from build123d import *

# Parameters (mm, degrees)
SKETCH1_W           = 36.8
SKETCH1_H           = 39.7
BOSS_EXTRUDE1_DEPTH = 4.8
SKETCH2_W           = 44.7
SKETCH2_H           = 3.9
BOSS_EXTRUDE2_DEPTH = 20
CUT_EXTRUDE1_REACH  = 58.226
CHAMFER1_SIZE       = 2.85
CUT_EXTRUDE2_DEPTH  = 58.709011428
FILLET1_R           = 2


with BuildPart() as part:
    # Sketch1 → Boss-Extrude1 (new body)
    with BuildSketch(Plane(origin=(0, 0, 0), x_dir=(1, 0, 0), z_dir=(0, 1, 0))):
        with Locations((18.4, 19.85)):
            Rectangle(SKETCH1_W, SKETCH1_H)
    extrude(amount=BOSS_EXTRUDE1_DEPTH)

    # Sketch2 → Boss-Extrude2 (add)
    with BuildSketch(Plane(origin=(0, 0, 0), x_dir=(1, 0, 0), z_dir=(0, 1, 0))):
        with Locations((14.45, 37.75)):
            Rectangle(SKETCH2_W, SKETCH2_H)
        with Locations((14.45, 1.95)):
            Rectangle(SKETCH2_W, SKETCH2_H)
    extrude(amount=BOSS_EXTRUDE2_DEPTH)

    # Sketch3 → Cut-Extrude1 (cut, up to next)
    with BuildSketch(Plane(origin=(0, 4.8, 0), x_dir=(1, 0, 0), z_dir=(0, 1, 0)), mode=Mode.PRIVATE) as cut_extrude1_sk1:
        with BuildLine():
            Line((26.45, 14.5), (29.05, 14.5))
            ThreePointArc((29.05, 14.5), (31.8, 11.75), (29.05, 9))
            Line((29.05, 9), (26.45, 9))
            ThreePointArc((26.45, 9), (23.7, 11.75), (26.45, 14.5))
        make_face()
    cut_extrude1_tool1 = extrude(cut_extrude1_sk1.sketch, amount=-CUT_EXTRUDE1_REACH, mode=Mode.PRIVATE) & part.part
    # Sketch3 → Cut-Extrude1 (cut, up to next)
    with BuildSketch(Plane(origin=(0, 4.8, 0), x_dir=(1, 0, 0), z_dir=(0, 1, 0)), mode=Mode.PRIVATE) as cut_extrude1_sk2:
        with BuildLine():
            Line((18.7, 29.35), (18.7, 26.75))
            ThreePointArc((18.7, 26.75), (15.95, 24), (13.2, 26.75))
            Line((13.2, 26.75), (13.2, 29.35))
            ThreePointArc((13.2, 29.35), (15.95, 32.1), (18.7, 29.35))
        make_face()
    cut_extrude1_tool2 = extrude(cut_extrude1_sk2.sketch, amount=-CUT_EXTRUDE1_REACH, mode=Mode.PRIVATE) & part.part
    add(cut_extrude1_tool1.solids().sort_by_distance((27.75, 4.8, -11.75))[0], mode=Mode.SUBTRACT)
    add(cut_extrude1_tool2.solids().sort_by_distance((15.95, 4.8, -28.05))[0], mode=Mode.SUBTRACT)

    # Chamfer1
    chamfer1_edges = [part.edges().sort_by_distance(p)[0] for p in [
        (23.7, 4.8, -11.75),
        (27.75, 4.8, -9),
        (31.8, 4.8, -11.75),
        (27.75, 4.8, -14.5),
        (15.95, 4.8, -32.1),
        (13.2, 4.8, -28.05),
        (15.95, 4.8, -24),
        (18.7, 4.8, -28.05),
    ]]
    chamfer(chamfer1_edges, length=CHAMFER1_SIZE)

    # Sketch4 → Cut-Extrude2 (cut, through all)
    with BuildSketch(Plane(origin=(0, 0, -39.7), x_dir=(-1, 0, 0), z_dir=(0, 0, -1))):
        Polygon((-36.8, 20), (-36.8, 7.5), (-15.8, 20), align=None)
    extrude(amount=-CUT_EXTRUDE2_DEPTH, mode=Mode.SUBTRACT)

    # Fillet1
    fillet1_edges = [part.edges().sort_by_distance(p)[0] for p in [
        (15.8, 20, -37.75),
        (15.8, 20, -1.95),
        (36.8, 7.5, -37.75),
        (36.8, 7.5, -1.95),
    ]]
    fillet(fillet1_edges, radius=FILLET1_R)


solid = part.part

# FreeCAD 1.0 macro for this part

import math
import FreeCAD as App
import Part
import Sketcher

V = App.Vector
Q = App.Units.Quantity


def edges_at(feature, points):
    """Names of the edges that pass closest to the given points."""
    edges = feature.Shape.Edges
    near = lambda p: min(range(len(edges)), key=lambda i: edges[i].distToShape(Part.Vertex(*p))[0])
    return sorted({f"Edge{near(p) + 1}" for p in points})


def add_polygon(sketch, points):
    """Adds a closed chain of lines whose ends are joined by coincident constraints."""
    first, n = sketch.GeometryCount, len(points)
    for a, b in zip(points, points[1:] + points[:1]):
        sketch.addGeometry(Part.LineSegment(App.Vector(*a, 0), App.Vector(*b, 0)), False)
    for i in range(n):
        sketch.addConstraint(Sketcher.Constraint("Coincident", first + i, 2, first + (i + 1) % n, 1))

doc = App.newDocument("Part")
body = doc.addObject("PartDesign::Body", "Body")

sketch1 = body.newObject("Sketcher::SketchObject", "Sketch")
sketch1.AttachmentSupport = (doc.getObject("XZ_Plane"), [""])
sketch1.MapMode = "FlatFace"
add_polygon(sketch1, [(0, -40), (0, 0), (37, 0), (37, -40)])
sketch1.addConstraint([
    Sketcher.Constraint("Vertical", 0),
    Sketcher.Constraint("Horizontal", 1),
    Sketcher.Constraint("Vertical", 2),
    Sketcher.Constraint("Horizontal", 3),
    Sketcher.Constraint("Coincident", 0, 2, -1, 1),
    Sketcher.Constraint("DistanceX", 1, 1, 1, 2, Q("36.8 mm")),
    Sketcher.Constraint("DistanceY", 0, 1, 0, 2, Q("39.7 mm")),
])
pad1 = body.newObject("PartDesign::Pad", "Pad")
pad1.Profile = sketch1
pad1.Length = 4.8
pad1.Reversed = True

sketch2 = body.newObject("Sketcher::SketchObject", "Sketch001")
sketch2.AttachmentSupport = (doc.getObject("XZ_Plane"), [""])
sketch2.MapMode = "FlatFace"
add_polygon(sketch2, [(-7.9, -39.7), (-7.9, -35.8), (36.8, -35.8), (36.8, -39.7)])
add_polygon(sketch2, [(-7.9, -3.9), (-7.9, 0), (36.8, 0), (36.8, -3.9)])
sketch2.addConstraint([
    Sketcher.Constraint("Vertical", 0),
    Sketcher.Constraint("Horizontal", 1),
    Sketcher.Constraint("Vertical", 2),
    Sketcher.Constraint("Horizontal", 3),
    Sketcher.Constraint("Vertical", 4),
    Sketcher.Constraint("Horizontal", 5),
    Sketcher.Constraint("Vertical", 6),
    Sketcher.Constraint("Horizontal", 7),
    Sketcher.Constraint("PointOnObject", 4, 2, -1),
    Sketcher.Constraint("Vertical", 3, 2, 4, 2),
    Sketcher.Constraint("Vertical", 2, 2, 5, 2),
    Sketcher.Constraint("Equal", 2, 4),
    Sketcher.Constraint("DistanceX", 1, 1, 1, 2, Q("44.7 mm")),
    Sketcher.Constraint("DistanceY", 0, 1, 0, 2, Q("3.9 mm")),
    Sketcher.Constraint("DistanceX", 0, 2, -1, 1, Q("7.9 mm")),
    Sketcher.Constraint("DistanceY", 0, 2, -1, 1, Q("35.8 mm")),
])
pad2 = body.newObject("PartDesign::Pad", "Pad001")
pad2.Profile = sketch2
pad2.Length = 20
pad2.Reversed = True

sketch3 = body.newObject("Sketcher::SketchObject", "Sketch002")
sketch3.AttachmentSupport = (doc.getObject("XZ_Plane"), [""])
sketch3.MapMode = "FlatFace"
sketch3.AttachmentOffset = App.Placement(V(0, 0, -4.8), App.Rotation())
sketch3.addGeometry([
    Part.LineSegment(V(29.1, -14.5, 0), V(26.4, -14.5, 0)),
    Part.ArcOfCircle(Part.Circle(V(26.4, -11.8, 0), V(0, 0, 1), 2.8), math.radians(90), math.radians(270)),
    Part.LineSegment(V(26.4, -9, 0), V(29.1, -9, 0)),
    Part.ArcOfCircle(Part.Circle(V(29.1, -11.8, 0), V(0, 0, 1), 2.8), math.radians(-90), math.radians(90)),
], False)
sketch3.addConstraint([
    Sketcher.Constraint("Tangent", 0, 2, 1, 2),
    Sketcher.Constraint("Tangent", 1, 1, 2, 1),
    Sketcher.Constraint("Tangent", 2, 2, 3, 2),
    Sketcher.Constraint("Tangent", 3, 1, 0, 1),
    Sketcher.Constraint("Horizontal", 0),
    Sketcher.Constraint("Horizontal", 2),
    Sketcher.Constraint("Radius", 1, Q("2.75 mm")),
    Sketcher.Constraint("DistanceX", 0, 2, 0, 1, Q("2.6 mm")),
    Sketcher.Constraint("DistanceY", 1, 1, -1, 1, Q("9 mm")),
    Sketcher.Constraint("DistanceX", -1, 1, 1, 3, Q("26.45 mm")),
])
pocket1 = body.newObject("PartDesign::Pocket", "Pocket")
pocket1.Profile = sketch3
pocket1.Type = "UpToFirst"
pocket1.Reversed = True

sketch4 = body.newObject("Sketcher::SketchObject", "Sketch003")
sketch4.AttachmentSupport = (doc.getObject("XZ_Plane"), [""])
sketch4.MapMode = "FlatFace"
sketch4.AttachmentOffset = App.Placement(V(0, 0, -4.8), App.Rotation())
sketch4.addGeometry([
    Part.LineSegment(V(18.7, -26.8, 0), V(18.7, -29.4, 0)),
    Part.ArcOfCircle(Part.Circle(V(15.9, -29.4, 0), V(0, 0, 1), 2.8), math.radians(180), math.radians(360)),
    Part.LineSegment(V(13.2, -29.4, 0), V(13.2, -26.8, 0)),
    Part.ArcOfCircle(Part.Circle(V(15.9, -26.8, 0), V(0, 0, 1), 2.8), math.radians(0), math.radians(180)),
], False)
sketch4.addConstraint([
    Sketcher.Constraint("Tangent", 0, 2, 1, 2),
    Sketcher.Constraint("Tangent", 1, 1, 2, 1),
    Sketcher.Constraint("Tangent", 2, 2, 3, 2),
    Sketcher.Constraint("Tangent", 3, 1, 0, 1),
    Sketcher.Constraint("Vertical", 0),
    Sketcher.Constraint("Vertical", 2),
    Sketcher.Constraint("Radius", 1, Q("2.75 mm")),
    Sketcher.Constraint("DistanceY", 0, 2, 0, 1, Q("2.6 mm")),
    Sketcher.Constraint("DistanceX", -1, 1, 0, 2, Q("18.7 mm")),
    Sketcher.Constraint("DistanceY", 1, 3, -1, 1, Q("29.35 mm")),
])
pocket2 = body.newObject("PartDesign::Pocket", "Pocket001")
pocket2.Profile = sketch4
pocket2.Type = "UpToFirst"
pocket2.Reversed = True
doc.recompute()

chamfer = body.newObject("PartDesign::Chamfer", "Chamfer")
chamfer.Base = (pocket2, edges_at(pocket2, [
    (23.7, 4.8, -11.75),
    (27.75, 4.8, -9),
    (31.8, 4.8, -11.75),
    (27.75, 4.8, -14.5),
    (15.95, 4.8, -32.1),
    (13.2, 4.8, -28.05),
    (15.95, 4.8, -24),
    (18.7, 4.8, -28.05),
]))
chamfer.Size = 2.85

sketch5 = body.newObject("Sketcher::SketchObject", "Sketch004")
sketch5.AttachmentSupport = (doc.getObject("XY_Plane"), [""])
sketch5.MapMode = "FlatFace"
sketch5.AttachmentOffset = App.Placement(V(0, 0, -39.7), App.Rotation())
add_polygon(sketch5, [(37, 20), (37, 8), (16, 20)])
sketch5.addConstraint([
    Sketcher.Constraint("Vertical", 0),
    Sketcher.Constraint("Horizontal", 2),
    Sketcher.Constraint("DistanceX", 2, 1, 2, 2, Q("21 mm")),
    Sketcher.Constraint("DistanceY", 0, 2, 0, 1, Q("12.5 mm")),
    Sketcher.Constraint("DistanceY", -1, 1, 1, 2, Q("20 mm")),
    Sketcher.Constraint("DistanceX", -1, 1, 0, 2, Q("36.8 mm")),
])
pocket3 = body.newObject("PartDesign::Pocket", "Pocket002")
pocket3.Profile = sketch5
pocket3.Type = "ThroughAll"
pocket3.Reversed = True
doc.recompute()

fillet = body.newObject("PartDesign::Fillet", "Fillet")
fillet.Base = (pocket3, edges_at(pocket3, [
    (15.8, 20, -37.75),
    (15.8, 20, -1.95),
    (36.8, 7.5, -37.75),
    (36.8, 7.5, -1.95),
]))
fillet.Radius = 2

doc.recompute()
